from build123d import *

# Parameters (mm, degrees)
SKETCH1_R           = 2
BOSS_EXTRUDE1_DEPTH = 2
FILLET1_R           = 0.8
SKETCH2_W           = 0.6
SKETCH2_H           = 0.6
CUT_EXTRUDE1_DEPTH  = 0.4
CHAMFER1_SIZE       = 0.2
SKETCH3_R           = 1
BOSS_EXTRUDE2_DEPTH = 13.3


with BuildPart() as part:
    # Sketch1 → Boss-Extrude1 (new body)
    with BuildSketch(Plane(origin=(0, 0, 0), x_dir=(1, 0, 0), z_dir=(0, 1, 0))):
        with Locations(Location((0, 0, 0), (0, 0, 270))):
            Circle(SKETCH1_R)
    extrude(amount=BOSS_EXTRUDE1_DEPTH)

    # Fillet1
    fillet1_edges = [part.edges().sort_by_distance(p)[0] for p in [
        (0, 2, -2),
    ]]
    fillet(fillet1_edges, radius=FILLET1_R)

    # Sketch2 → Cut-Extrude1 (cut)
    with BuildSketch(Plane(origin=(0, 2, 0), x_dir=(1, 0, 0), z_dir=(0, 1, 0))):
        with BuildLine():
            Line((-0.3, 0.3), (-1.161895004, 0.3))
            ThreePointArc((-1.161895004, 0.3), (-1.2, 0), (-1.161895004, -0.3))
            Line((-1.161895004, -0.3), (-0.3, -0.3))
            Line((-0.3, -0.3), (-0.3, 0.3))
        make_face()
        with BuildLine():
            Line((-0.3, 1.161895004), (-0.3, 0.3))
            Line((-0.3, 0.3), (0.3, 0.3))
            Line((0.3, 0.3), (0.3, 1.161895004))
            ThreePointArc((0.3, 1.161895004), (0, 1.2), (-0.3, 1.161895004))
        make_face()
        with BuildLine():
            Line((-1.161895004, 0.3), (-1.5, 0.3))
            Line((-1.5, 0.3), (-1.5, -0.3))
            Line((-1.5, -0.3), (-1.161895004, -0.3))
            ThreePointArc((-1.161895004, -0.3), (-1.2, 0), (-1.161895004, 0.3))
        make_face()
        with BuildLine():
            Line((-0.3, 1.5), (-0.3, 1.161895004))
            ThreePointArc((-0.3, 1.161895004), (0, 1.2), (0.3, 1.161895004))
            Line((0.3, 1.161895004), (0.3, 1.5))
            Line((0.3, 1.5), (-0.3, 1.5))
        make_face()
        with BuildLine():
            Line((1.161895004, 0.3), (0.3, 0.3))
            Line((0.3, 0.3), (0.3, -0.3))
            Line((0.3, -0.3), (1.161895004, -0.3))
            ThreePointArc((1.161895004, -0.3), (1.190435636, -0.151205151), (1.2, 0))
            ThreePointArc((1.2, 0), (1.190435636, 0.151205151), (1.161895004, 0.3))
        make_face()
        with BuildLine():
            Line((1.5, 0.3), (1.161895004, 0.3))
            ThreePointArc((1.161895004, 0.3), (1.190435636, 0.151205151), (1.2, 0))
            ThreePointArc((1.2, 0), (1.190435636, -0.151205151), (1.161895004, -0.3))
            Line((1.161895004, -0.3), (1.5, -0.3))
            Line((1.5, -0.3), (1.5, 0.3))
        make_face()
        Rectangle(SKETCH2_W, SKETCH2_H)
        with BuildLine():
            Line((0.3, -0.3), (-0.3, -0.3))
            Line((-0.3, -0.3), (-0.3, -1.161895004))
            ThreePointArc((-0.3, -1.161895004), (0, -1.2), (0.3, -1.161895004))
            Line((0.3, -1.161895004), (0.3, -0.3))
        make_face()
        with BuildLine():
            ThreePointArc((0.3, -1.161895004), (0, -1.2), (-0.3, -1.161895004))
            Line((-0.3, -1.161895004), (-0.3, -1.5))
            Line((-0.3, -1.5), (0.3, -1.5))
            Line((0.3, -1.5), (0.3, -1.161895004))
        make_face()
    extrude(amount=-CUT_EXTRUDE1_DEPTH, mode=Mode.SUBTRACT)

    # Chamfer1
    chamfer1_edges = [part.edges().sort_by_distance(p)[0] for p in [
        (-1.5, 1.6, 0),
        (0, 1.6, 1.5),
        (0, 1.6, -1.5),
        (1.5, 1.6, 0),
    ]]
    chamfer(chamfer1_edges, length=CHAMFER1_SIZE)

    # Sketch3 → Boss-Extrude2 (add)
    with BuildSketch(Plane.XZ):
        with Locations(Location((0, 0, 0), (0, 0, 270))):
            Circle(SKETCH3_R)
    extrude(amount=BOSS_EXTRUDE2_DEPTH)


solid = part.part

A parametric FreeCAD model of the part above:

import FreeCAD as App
import Part
import Sketcher

V = App.Vector
Q = App.Units.Quantity


def edges_at(feature, points):
    """Names of the edges that pass closest to the given points."""
    edges = feature.Shape.Edges
    near = lambda p: min(range(len(edges)), key=lambda i: edges[i].distToShape(Part.Vertex(*p))[0])
    return sorted({f"Edge{near(p) + 1}" for p in points})

doc = App.newDocument("Part")
body = doc.addObject("PartDesign::Body", "Body")

sketch1 = body.newObject("Sketcher::SketchObject", "Sketch")
sketch1.AttachmentSupport = (doc.getObject("XZ_Plane"), [""])
sketch1.MapMode = "FlatFace"
sketch1.addGeometry(Part.Circle(V(0, 0, 0), V(0, 0, 1), 2), False)
sketch1.addConstraint([
    Sketcher.Constraint("Coincident", 0, 3, -1, 1),
    Sketcher.Constraint("Diameter", 0, Q("4 mm")),
])
pad1 = body.newObject("PartDesign::Pad", "Pad")
pad1.Profile = sketch1
pad1.Length = 2
pad1.Reversed = True
doc.recompute()

fillet = body.newObject("PartDesign::Fillet", "Fillet")
fillet.Base = (pad1, edges_at(pad1, [(0, 2, -2)]))
fillet.Radius = 0.8

sketch2 = body.newObject("Sketcher::SketchObject", "Sketch001")
sketch2.AttachmentSupport = (doc.getObject("XZ_Plane"), [""])
sketch2.MapMode = "FlatFace"
sketch2.AttachmentOffset = App.Placement(V(0, 0, -2), App.Rotation())
sketch2.addGeometry([
    Part.LineSegment(V(-0.3, -0.3, 0), V(-1.5, -0.3, 0)),
    Part.LineSegment(V(-1.5, -0.3, 0), V(-1.5, 0.3, 0)),
    Part.LineSegment(V(-1.5, 0.3, 0), V(-0.3, 0.3, 0)),
    Part.LineSegment(V(-0.3, 0.3, 0), V(-0.3, 1.5, 0)),
    Part.LineSegment(V(-0.3, 1.5, 0), V(0.3, 1.5, 0)),
    Part.LineSegment(V(0.3, 1.5, 0), V(0.3, 0.3, 0)),
    Part.LineSegment(V(0.3, 0.3, 0), V(1.5, 0.3, 0)),
    Part.LineSegment(V(1.5, 0.3, 0), V(1.5, -0.3, 0)),
    Part.LineSegment(V(1.5, -0.3, 0), V(0.3, -0.3, 0)),
    Part.LineSegment(V(0.3, -0.3, 0), V(0.3, -1.5, 0)),
    Part.LineSegment(V(0.3, -1.5, 0), V(-0.3, -1.5, 0)),
    Part.LineSegment(V(-0.3, -1.5, 0), V(-0.3, -0.3, 0)),
], False)
sketch2.addConstraint([
    Sketcher.Constraint("Coincident", 0, 2, 1, 1),
    Sketcher.Constraint("Coincident", 1, 2, 2, 1),
    Sketcher.Constraint("Coincident", 2, 2, 3, 1),
    Sketcher.Constraint("Coincident", 3, 2, 4, 1),
    Sketcher.Constraint("Coincident", 4, 2, 5, 1),
    Sketcher.Constraint("Coincident", 5, 2, 6, 1),
    Sketcher.Constraint("Coincident", 6, 2, 7, 1),
    Sketcher.Constraint("Coincident", 7, 2, 8, 1),
    Sketcher.Constraint("Coincident", 8, 2, 9, 1),
    Sketcher.Constraint("Coincident", 9, 2, 10, 1),
    Sketcher.Constraint("Coincident", 10, 2, 11, 1),
    Sketcher.Constraint("Coincident", 11, 2, 0, 1),
    Sketcher.Constraint("Horizontal", 0),
    Sketcher.Constraint("Vertical", 1),
    Sketcher.Constraint("Horizontal", 2),
    Sketcher.Constraint("Vertical", 3),
    Sketcher.Constraint("Horizontal", 4),
    Sketcher.Constraint("Vertical", 5),
    Sketcher.Constraint("Horizontal", 6),
    Sketcher.Constraint("Vertical", 7),
    Sketcher.Constraint("Horizontal", 8),
    Sketcher.Constraint("Vertical", 9),
    Sketcher.Constraint("Horizontal", 10),
    Sketcher.Constraint("Vertical", 11),
    Sketcher.Constraint("Symmetric", 0, 2, 6, 2, -1, 1),
    Sketcher.Constraint("Symmetric", 2, 2, 8, 2, -1, 1),
    Sketcher.Constraint("Symmetric", 4, 2, 10, 2, -1, 1),
    Sketcher.Constraint("Symmetric", 2, 2, 5, 2, -2),
    Sketcher.Constraint("Equal", 10, 1),
    Sketcher.Constraint("Equal", 8, 3),
    Sketcher.Constraint("DistanceX", 0, 2, 0, 1, Q("1.2 mm")),
    Sketcher.Constraint("DistanceX", 4, 1, 4, 2, Q("0.6 mm")),
])
pocket1 = body.newObject("PartDesign::Pocket", "Pocket")
pocket1.Profile = sketch2
pocket1.Length = 0.4
pocket1.Reversed = True
doc.recompute()

chamfer = body.newObject("PartDesign::Chamfer", "Chamfer")
chamfer.Base = (pocket1, edges_at(pocket1, [
    (-1.5, 1.6, 0),
    (0, 1.6, 1.5),
    (0, 1.6, -1.5),
    (1.5, 1.6, 0),
]))
chamfer.Size = 0.2

sketch3 = body.newObject("Sketcher::SketchObject", "Sketch002")
sketch3.AttachmentSupport = (doc.getObject("XZ_Plane"), [""])
sketch3.MapMode = "FlatFace"
sketch3.addGeometry(Part.Circle(V(0, 0, 0), V(0, 0, 1), 1), False)
sketch3.addConstraint([
    Sketcher.Constraint("Coincident", 0, 3, -1, 1),
    Sketcher.Constraint("Diameter", 0, Q("2 mm")),
])
pad2 = body.newObject("PartDesign::Pad", "Pad001")
pad2.Profile = sketch3
pad2.Length = 13.3

doc.recompute()
